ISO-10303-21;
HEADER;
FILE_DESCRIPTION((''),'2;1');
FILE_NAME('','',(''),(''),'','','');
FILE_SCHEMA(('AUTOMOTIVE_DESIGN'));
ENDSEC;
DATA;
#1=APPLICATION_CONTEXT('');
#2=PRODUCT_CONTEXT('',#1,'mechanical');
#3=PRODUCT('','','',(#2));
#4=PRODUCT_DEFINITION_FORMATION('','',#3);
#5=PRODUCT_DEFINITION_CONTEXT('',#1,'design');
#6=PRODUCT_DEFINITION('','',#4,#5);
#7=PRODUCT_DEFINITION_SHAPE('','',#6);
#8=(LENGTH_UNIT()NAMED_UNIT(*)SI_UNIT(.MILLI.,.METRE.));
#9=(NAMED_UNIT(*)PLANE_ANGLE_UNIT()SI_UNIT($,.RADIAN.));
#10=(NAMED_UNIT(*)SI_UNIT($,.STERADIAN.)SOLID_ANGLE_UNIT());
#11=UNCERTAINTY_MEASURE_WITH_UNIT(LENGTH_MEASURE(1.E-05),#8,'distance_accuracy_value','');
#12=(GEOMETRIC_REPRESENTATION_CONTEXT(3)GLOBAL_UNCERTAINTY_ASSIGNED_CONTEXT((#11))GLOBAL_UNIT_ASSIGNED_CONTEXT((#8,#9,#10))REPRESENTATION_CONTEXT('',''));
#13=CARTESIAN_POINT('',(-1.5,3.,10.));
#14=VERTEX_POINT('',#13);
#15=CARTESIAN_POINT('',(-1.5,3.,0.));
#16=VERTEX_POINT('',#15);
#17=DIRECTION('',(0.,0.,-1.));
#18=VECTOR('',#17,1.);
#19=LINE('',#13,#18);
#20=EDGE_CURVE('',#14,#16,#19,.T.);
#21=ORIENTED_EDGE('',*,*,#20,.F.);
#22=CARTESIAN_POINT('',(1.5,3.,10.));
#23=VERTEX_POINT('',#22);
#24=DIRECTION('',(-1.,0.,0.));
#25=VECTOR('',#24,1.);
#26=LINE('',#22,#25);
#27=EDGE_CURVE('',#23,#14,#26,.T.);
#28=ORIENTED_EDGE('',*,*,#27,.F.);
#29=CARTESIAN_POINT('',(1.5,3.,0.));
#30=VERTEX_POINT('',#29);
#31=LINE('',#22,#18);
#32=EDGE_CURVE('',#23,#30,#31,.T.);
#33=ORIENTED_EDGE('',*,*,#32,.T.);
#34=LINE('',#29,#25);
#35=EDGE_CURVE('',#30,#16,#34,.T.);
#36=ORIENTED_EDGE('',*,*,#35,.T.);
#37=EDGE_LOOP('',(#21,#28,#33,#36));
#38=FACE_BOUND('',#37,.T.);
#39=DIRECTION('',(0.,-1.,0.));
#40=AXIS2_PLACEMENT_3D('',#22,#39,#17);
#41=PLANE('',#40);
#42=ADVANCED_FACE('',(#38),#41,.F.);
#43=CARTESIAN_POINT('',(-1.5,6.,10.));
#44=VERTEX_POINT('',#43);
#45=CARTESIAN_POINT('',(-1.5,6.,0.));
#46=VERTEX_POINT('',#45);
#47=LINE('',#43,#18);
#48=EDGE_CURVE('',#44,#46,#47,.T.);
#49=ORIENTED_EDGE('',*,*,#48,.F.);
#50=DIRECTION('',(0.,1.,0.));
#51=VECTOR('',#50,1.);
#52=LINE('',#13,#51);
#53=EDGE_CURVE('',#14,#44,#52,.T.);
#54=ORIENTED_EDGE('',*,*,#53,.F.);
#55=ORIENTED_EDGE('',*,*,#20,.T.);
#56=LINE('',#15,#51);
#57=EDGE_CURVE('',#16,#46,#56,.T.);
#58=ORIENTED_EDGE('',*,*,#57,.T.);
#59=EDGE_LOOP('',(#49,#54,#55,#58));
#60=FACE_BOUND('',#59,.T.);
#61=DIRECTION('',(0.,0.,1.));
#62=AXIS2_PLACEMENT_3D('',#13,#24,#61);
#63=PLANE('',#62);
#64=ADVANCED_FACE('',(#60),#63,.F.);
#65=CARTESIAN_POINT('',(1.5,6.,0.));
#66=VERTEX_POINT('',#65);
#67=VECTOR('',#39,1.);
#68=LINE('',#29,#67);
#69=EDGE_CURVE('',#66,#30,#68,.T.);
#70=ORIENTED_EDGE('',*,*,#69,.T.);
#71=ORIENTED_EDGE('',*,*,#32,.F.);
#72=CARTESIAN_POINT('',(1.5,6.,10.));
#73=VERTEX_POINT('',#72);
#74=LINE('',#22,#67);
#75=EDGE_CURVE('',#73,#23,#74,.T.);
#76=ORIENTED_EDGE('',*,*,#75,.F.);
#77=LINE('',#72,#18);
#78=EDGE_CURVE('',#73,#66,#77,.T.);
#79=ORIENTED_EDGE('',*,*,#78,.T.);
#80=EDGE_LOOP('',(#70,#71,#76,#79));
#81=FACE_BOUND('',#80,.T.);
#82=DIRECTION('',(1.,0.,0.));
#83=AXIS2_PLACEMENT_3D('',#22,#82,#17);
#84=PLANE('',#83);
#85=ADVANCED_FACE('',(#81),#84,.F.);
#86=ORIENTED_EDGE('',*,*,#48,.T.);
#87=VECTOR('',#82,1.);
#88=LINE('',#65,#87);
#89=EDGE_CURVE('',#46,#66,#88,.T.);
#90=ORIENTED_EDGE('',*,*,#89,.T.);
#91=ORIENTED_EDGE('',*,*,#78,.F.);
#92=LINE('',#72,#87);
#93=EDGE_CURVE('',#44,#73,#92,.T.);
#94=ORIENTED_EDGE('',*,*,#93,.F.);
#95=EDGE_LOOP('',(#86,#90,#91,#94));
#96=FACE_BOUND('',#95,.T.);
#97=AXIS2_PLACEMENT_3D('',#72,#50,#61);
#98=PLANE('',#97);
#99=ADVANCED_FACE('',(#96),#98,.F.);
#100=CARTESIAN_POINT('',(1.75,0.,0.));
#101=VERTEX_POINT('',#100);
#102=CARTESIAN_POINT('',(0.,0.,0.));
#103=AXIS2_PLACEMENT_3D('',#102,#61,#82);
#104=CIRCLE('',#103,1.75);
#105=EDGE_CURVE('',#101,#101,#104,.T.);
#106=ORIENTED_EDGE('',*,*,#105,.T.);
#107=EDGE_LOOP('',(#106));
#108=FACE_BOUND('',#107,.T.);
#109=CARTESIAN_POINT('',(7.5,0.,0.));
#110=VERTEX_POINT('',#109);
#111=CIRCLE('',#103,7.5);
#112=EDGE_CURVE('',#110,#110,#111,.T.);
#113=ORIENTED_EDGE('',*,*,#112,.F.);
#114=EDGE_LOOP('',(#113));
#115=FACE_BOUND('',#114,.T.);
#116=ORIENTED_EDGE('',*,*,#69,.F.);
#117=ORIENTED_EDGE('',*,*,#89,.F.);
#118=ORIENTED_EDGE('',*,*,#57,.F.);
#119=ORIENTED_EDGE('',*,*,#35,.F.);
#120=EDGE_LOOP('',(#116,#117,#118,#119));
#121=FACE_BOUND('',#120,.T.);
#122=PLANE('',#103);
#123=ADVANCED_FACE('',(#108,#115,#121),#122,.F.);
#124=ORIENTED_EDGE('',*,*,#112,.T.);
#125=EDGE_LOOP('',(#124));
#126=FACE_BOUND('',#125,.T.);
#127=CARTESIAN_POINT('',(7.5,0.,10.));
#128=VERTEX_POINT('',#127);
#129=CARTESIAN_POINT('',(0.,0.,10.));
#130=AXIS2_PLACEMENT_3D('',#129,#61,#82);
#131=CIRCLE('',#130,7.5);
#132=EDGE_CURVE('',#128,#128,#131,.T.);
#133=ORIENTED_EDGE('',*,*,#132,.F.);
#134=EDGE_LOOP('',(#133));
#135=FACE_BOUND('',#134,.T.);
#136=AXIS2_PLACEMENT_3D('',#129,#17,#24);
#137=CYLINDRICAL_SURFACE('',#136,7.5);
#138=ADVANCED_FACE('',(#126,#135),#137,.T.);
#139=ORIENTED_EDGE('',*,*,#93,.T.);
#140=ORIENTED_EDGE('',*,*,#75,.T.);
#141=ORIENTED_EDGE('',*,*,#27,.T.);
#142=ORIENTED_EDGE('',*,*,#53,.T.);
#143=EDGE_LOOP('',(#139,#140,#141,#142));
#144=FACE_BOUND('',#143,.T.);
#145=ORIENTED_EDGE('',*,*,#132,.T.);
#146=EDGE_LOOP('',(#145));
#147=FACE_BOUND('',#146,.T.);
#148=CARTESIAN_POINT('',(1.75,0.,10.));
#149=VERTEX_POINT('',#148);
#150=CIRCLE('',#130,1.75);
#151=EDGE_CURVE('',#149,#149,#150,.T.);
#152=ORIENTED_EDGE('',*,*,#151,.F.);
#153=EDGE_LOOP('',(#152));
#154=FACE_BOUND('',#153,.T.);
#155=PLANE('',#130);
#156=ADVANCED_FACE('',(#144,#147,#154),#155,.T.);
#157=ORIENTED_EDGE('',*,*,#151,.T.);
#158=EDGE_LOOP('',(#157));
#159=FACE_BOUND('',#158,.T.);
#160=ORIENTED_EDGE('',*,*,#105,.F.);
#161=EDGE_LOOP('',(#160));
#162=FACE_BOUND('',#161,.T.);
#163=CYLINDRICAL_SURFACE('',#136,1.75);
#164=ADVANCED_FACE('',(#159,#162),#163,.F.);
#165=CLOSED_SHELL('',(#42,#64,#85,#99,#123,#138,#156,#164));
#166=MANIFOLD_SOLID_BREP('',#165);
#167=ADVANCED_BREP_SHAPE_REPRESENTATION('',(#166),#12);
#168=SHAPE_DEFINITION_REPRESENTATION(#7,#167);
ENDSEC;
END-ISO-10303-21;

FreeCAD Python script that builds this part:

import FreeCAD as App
import Part
import Sketcher
from FreeCAD import Vector


def add_polygon(sketch, points):
    """Adds a closed chain of lines whose ends are joined by coincident constraints."""
    first, n = sketch.GeometryCount, len(points)
    for a, b in zip(points, points[1:] + points[:1]):
        sketch.addGeometry(Part.LineSegment(App.Vector(*a, 0), App.Vector(*b, 0)), False)
    for i in range(n):
        sketch.addConstraint(Sketcher.Constraint("Coincident", first + i, 2, first + (i + 1) % n, 1))

doc = App.newDocument("Part")
params = doc.addObject("Spreadsheet::Sheet", "Params")
for row, (alias, value) in enumerate([
    ("sketch1_diameter", "15 mm"),
    ("sketch1_diameter2", "3.5 mm"),
    ("pad1_length", "10 mm"),
    ("sketch2_width", "3 mm"),
], start=1):
    params.set(f"A{row}", alias)
    params.set(f"B{row}", "=" + value)
    params.setAlias(f"B{row}", alias)

body = doc.addObject("PartDesign::Body", "Body")

sketch1 = body.newObject("Sketcher::SketchObject", "Sketch")
sketch1.AttachmentSupport = (doc.getObject("XY_Plane"), [""])
sketch1.MapMode = "FlatFace"
sketch1.addGeometry(Part.Circle(Vector(0, 0, 0), Vector(0, 0, 1), 7.5), False)
sketch1.addGeometry(Part.Circle(Vector(0, 0, 0), Vector(0, 0, 1), 1.75), False)
sketch1.addConstraint(Sketcher.Constraint("Coincident", 0, 3, -1, 1))
sketch1.addConstraint(Sketcher.Constraint("Coincident", 1, 3, -1, 1))
sketch1.addConstraint(Sketcher.Constraint("Diameter", 0, 15.0))
sketch1.addConstraint(Sketcher.Constraint("Diameter", 1, 3.5))
sketch1.setExpression("Constraints[2]", "Params.sketch1_diameter")
sketch1.setExpression("Constraints[3]", "Params.sketch1_diameter2")
pad1 = body.newObject("PartDesign::Pad", "Pad")
pad1.Profile = sketch1
pad1.setExpression("Length", "Params.pad1_length")

sketch2 = body.newObject("Sketcher::SketchObject", "Sketch001")
sketch2.AttachmentSupport = (doc.getObject("XY_Plane"), [""])
sketch2.MapMode = "FlatFace"
add_polygon(sketch2, [(1.5, 6), (1.5, 3), (-1.5, 3), (-1.5, 6)])
sketch2.addConstraint(Sketcher.Constraint("Vertical", 0))
sketch2.addConstraint(Sketcher.Constraint("Horizontal", 1))
sketch2.addConstraint(Sketcher.Constraint("Vertical", 2))
sketch2.addConstraint(Sketcher.Constraint("Horizontal", 3))
sketch2.addConstraint(Sketcher.Constraint("Equal", 3, 0))
sketch2.addConstraint(Sketcher.Constraint("DistanceX", 1, 2, 1, 1, 3.0))
sketch2.addConstraint(Sketcher.Constraint("DistanceY", -1, 1, 0, 2, 3.0))
sketch2.addConstraint(Sketcher.Constraint("DistanceX", -1, 1, 0, 2, 1.5))
sketch2.setExpression("Constraints[9]", "Params.sketch2_width")
pocket1 = body.newObject("PartDesign::Pocket", "Pocket")
pocket1.Profile = sketch2
pocket1.Type = "ThroughAll"
pocket1.Reversed = True

doc.recompute()
